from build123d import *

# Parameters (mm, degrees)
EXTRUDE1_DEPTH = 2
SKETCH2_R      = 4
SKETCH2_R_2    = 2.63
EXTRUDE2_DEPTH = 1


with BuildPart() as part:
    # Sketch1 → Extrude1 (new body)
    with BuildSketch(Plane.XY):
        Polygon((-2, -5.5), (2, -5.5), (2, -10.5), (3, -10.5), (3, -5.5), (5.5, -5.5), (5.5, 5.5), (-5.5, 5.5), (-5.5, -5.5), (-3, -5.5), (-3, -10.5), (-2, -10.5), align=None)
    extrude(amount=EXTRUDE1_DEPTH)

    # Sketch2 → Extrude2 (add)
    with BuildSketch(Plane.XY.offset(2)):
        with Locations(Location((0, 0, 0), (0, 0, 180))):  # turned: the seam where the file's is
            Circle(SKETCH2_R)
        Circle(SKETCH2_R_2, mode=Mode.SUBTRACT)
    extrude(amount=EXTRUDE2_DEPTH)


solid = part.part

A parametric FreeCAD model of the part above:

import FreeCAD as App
import Part
import Sketcher
Q = App.Units.Quantity


def add_polygon(sketch, points):
    """Adds a closed chain of lines whose ends are joined by coincident constraints."""
    first, n = sketch.GeometryCount, len(points)
    for a, b in zip(points, points[1:] + points[:1]):
        sketch.addGeometry(Part.LineSegment(App.Vector(*a, 0), App.Vector(*b, 0)), False)
    for i in range(n):
        sketch.addConstraint(Sketcher.Constraint("Coincident", first + i, 2, first + (i + 1) % n, 1))

doc = App.newDocument("Part")
params = doc.addObject("Spreadsheet::Sheet", "Params")
for row, (alias, value) in enumerate([
    ("sketch1_width", "4 mm"),
    ("sketch1_width2", "1 mm"),
    ("sketch1_width3", "11 mm"),
    ("sketch1_height", "5 mm"),
    ("pad1_length", "2 mm"),
    ("sketch2_diameter", "8 mm"),
    ("sketch2_diameter2", "5.26 mm"),
    ("pad2_length", "1 mm"),
], start=1):
    params.set(f"A{row}", alias)
    params.set(f"B{row}", "=" + value)
    params.setAlias(f"B{row}", alias)

body = doc.addObject("PartDesign::Body", "Body")

# Sketch on XY plane
sketch1 = body.newObject("Sketcher::SketchObject", "Sketch")
sketch1.AttachmentSupport = (doc.getObject("XY_Plane"), [""])
sketch1.MapMode = "FlatFace"
add_polygon(sketch1, [(-2, -5.5), (2, -5.5), (2, -10.5), (3, -10.5), (3, -5.5), (5.5, -5.5), (5.5, 5.5), (-5.5, 5.5), (-5.5, -5.5), (-3, -5.5), (-3, -10.5), (-2, -10.5)])  # lines 0-11
sketch1.addConstraint([
    Sketcher.Constraint("Horizontal", 0),
    Sketcher.Constraint("Vertical", 1),
    Sketcher.Constraint("Horizontal", 2),
    Sketcher.Constraint("Vertical", 3),
    Sketcher.Constraint("Horizontal", 4),
    Sketcher.Constraint("Vertical", 5),
    Sketcher.Constraint("Horizontal", 6),
    Sketcher.Constraint("Vertical", 7),
    Sketcher.Constraint("Horizontal", 8),
    Sketcher.Constraint("Vertical", 9),
    Sketcher.Constraint("Horizontal", 10),
    Sketcher.Constraint("Vertical", 11),
    Sketcher.Constraint("Symmetric", 4, 2, 6, 2, -1, 1),
    Sketcher.Constraint("Symmetric", 3, 2, 8, 2, -2),
    Sketcher.Constraint("Symmetric", 1, 2, 10, 2, -2),
    Sketcher.Constraint("Horizontal", 0, 2, 3, 2),
    Sketcher.Constraint("Equal", 6, 5),
    Sketcher.Constraint("DistanceX", 0, 1, 0, 2, Q("4 mm")),
    Sketcher.Constraint("DistanceX", 2, 1, 2, 2, Q("1 mm")),
    Sketcher.Constraint("DistanceX", 6, 2, 6, 1, Q("11 mm")),
    Sketcher.Constraint("DistanceY", 1, 2, 1, 1, Q("5 mm")),
])
sketch1.setExpression("Constraints[29]", "Params.sketch1_width")
sketch1.setExpression("Constraints[30]", "Params.sketch1_width2")
sketch1.setExpression("Constraints[31]", "Params.sketch1_width3")
sketch1.setExpression("Constraints[32]", "Params.sketch1_height")
pad1 = body.newObject("PartDesign::Pad", "Pad")
pad1.Profile = sketch1
pad1.setExpression("Length", "Params.pad1_length")

# Sketch on XY plane
sketch2 = body.newObject("Sketcher::SketchObject", "Sketch001")
sketch2.AttachmentSupport = (doc.getObject("XY_Plane"), [""])
sketch2.MapMode = "FlatFace"
sketch2.AttachmentOffset = App.Placement(App.Vector(0, 0, 2), App.Rotation())
sketch2.addGeometry([
    Part.Circle(App.Vector(0, 0, 0), App.Vector(0, 0, 1), 4),
    Part.Circle(App.Vector(0, 0, 0), App.Vector(0, 0, 1), 2.63),
], False)
sketch2.addConstraint([
    Sketcher.Constraint("Coincident", 0, 3, -1, 1),
    Sketcher.Constraint("Coincident", 1, 3, -1, 1),
    Sketcher.Constraint("Diameter", 0, Q("8 mm")),
    Sketcher.Constraint("Diameter", 1, Q("5.26 mm")),
])
sketch2.setExpression("Constraints[2]", "Params.sketch2_diameter")
sketch2.setExpression("Constraints[3]", "Params.sketch2_diameter2")
pad2 = body.newObject("PartDesign::Pad", "Pad001")
pad2.Profile = sketch2
pad2.setExpression("Length", "Params.pad2_length")

doc.recompute()
